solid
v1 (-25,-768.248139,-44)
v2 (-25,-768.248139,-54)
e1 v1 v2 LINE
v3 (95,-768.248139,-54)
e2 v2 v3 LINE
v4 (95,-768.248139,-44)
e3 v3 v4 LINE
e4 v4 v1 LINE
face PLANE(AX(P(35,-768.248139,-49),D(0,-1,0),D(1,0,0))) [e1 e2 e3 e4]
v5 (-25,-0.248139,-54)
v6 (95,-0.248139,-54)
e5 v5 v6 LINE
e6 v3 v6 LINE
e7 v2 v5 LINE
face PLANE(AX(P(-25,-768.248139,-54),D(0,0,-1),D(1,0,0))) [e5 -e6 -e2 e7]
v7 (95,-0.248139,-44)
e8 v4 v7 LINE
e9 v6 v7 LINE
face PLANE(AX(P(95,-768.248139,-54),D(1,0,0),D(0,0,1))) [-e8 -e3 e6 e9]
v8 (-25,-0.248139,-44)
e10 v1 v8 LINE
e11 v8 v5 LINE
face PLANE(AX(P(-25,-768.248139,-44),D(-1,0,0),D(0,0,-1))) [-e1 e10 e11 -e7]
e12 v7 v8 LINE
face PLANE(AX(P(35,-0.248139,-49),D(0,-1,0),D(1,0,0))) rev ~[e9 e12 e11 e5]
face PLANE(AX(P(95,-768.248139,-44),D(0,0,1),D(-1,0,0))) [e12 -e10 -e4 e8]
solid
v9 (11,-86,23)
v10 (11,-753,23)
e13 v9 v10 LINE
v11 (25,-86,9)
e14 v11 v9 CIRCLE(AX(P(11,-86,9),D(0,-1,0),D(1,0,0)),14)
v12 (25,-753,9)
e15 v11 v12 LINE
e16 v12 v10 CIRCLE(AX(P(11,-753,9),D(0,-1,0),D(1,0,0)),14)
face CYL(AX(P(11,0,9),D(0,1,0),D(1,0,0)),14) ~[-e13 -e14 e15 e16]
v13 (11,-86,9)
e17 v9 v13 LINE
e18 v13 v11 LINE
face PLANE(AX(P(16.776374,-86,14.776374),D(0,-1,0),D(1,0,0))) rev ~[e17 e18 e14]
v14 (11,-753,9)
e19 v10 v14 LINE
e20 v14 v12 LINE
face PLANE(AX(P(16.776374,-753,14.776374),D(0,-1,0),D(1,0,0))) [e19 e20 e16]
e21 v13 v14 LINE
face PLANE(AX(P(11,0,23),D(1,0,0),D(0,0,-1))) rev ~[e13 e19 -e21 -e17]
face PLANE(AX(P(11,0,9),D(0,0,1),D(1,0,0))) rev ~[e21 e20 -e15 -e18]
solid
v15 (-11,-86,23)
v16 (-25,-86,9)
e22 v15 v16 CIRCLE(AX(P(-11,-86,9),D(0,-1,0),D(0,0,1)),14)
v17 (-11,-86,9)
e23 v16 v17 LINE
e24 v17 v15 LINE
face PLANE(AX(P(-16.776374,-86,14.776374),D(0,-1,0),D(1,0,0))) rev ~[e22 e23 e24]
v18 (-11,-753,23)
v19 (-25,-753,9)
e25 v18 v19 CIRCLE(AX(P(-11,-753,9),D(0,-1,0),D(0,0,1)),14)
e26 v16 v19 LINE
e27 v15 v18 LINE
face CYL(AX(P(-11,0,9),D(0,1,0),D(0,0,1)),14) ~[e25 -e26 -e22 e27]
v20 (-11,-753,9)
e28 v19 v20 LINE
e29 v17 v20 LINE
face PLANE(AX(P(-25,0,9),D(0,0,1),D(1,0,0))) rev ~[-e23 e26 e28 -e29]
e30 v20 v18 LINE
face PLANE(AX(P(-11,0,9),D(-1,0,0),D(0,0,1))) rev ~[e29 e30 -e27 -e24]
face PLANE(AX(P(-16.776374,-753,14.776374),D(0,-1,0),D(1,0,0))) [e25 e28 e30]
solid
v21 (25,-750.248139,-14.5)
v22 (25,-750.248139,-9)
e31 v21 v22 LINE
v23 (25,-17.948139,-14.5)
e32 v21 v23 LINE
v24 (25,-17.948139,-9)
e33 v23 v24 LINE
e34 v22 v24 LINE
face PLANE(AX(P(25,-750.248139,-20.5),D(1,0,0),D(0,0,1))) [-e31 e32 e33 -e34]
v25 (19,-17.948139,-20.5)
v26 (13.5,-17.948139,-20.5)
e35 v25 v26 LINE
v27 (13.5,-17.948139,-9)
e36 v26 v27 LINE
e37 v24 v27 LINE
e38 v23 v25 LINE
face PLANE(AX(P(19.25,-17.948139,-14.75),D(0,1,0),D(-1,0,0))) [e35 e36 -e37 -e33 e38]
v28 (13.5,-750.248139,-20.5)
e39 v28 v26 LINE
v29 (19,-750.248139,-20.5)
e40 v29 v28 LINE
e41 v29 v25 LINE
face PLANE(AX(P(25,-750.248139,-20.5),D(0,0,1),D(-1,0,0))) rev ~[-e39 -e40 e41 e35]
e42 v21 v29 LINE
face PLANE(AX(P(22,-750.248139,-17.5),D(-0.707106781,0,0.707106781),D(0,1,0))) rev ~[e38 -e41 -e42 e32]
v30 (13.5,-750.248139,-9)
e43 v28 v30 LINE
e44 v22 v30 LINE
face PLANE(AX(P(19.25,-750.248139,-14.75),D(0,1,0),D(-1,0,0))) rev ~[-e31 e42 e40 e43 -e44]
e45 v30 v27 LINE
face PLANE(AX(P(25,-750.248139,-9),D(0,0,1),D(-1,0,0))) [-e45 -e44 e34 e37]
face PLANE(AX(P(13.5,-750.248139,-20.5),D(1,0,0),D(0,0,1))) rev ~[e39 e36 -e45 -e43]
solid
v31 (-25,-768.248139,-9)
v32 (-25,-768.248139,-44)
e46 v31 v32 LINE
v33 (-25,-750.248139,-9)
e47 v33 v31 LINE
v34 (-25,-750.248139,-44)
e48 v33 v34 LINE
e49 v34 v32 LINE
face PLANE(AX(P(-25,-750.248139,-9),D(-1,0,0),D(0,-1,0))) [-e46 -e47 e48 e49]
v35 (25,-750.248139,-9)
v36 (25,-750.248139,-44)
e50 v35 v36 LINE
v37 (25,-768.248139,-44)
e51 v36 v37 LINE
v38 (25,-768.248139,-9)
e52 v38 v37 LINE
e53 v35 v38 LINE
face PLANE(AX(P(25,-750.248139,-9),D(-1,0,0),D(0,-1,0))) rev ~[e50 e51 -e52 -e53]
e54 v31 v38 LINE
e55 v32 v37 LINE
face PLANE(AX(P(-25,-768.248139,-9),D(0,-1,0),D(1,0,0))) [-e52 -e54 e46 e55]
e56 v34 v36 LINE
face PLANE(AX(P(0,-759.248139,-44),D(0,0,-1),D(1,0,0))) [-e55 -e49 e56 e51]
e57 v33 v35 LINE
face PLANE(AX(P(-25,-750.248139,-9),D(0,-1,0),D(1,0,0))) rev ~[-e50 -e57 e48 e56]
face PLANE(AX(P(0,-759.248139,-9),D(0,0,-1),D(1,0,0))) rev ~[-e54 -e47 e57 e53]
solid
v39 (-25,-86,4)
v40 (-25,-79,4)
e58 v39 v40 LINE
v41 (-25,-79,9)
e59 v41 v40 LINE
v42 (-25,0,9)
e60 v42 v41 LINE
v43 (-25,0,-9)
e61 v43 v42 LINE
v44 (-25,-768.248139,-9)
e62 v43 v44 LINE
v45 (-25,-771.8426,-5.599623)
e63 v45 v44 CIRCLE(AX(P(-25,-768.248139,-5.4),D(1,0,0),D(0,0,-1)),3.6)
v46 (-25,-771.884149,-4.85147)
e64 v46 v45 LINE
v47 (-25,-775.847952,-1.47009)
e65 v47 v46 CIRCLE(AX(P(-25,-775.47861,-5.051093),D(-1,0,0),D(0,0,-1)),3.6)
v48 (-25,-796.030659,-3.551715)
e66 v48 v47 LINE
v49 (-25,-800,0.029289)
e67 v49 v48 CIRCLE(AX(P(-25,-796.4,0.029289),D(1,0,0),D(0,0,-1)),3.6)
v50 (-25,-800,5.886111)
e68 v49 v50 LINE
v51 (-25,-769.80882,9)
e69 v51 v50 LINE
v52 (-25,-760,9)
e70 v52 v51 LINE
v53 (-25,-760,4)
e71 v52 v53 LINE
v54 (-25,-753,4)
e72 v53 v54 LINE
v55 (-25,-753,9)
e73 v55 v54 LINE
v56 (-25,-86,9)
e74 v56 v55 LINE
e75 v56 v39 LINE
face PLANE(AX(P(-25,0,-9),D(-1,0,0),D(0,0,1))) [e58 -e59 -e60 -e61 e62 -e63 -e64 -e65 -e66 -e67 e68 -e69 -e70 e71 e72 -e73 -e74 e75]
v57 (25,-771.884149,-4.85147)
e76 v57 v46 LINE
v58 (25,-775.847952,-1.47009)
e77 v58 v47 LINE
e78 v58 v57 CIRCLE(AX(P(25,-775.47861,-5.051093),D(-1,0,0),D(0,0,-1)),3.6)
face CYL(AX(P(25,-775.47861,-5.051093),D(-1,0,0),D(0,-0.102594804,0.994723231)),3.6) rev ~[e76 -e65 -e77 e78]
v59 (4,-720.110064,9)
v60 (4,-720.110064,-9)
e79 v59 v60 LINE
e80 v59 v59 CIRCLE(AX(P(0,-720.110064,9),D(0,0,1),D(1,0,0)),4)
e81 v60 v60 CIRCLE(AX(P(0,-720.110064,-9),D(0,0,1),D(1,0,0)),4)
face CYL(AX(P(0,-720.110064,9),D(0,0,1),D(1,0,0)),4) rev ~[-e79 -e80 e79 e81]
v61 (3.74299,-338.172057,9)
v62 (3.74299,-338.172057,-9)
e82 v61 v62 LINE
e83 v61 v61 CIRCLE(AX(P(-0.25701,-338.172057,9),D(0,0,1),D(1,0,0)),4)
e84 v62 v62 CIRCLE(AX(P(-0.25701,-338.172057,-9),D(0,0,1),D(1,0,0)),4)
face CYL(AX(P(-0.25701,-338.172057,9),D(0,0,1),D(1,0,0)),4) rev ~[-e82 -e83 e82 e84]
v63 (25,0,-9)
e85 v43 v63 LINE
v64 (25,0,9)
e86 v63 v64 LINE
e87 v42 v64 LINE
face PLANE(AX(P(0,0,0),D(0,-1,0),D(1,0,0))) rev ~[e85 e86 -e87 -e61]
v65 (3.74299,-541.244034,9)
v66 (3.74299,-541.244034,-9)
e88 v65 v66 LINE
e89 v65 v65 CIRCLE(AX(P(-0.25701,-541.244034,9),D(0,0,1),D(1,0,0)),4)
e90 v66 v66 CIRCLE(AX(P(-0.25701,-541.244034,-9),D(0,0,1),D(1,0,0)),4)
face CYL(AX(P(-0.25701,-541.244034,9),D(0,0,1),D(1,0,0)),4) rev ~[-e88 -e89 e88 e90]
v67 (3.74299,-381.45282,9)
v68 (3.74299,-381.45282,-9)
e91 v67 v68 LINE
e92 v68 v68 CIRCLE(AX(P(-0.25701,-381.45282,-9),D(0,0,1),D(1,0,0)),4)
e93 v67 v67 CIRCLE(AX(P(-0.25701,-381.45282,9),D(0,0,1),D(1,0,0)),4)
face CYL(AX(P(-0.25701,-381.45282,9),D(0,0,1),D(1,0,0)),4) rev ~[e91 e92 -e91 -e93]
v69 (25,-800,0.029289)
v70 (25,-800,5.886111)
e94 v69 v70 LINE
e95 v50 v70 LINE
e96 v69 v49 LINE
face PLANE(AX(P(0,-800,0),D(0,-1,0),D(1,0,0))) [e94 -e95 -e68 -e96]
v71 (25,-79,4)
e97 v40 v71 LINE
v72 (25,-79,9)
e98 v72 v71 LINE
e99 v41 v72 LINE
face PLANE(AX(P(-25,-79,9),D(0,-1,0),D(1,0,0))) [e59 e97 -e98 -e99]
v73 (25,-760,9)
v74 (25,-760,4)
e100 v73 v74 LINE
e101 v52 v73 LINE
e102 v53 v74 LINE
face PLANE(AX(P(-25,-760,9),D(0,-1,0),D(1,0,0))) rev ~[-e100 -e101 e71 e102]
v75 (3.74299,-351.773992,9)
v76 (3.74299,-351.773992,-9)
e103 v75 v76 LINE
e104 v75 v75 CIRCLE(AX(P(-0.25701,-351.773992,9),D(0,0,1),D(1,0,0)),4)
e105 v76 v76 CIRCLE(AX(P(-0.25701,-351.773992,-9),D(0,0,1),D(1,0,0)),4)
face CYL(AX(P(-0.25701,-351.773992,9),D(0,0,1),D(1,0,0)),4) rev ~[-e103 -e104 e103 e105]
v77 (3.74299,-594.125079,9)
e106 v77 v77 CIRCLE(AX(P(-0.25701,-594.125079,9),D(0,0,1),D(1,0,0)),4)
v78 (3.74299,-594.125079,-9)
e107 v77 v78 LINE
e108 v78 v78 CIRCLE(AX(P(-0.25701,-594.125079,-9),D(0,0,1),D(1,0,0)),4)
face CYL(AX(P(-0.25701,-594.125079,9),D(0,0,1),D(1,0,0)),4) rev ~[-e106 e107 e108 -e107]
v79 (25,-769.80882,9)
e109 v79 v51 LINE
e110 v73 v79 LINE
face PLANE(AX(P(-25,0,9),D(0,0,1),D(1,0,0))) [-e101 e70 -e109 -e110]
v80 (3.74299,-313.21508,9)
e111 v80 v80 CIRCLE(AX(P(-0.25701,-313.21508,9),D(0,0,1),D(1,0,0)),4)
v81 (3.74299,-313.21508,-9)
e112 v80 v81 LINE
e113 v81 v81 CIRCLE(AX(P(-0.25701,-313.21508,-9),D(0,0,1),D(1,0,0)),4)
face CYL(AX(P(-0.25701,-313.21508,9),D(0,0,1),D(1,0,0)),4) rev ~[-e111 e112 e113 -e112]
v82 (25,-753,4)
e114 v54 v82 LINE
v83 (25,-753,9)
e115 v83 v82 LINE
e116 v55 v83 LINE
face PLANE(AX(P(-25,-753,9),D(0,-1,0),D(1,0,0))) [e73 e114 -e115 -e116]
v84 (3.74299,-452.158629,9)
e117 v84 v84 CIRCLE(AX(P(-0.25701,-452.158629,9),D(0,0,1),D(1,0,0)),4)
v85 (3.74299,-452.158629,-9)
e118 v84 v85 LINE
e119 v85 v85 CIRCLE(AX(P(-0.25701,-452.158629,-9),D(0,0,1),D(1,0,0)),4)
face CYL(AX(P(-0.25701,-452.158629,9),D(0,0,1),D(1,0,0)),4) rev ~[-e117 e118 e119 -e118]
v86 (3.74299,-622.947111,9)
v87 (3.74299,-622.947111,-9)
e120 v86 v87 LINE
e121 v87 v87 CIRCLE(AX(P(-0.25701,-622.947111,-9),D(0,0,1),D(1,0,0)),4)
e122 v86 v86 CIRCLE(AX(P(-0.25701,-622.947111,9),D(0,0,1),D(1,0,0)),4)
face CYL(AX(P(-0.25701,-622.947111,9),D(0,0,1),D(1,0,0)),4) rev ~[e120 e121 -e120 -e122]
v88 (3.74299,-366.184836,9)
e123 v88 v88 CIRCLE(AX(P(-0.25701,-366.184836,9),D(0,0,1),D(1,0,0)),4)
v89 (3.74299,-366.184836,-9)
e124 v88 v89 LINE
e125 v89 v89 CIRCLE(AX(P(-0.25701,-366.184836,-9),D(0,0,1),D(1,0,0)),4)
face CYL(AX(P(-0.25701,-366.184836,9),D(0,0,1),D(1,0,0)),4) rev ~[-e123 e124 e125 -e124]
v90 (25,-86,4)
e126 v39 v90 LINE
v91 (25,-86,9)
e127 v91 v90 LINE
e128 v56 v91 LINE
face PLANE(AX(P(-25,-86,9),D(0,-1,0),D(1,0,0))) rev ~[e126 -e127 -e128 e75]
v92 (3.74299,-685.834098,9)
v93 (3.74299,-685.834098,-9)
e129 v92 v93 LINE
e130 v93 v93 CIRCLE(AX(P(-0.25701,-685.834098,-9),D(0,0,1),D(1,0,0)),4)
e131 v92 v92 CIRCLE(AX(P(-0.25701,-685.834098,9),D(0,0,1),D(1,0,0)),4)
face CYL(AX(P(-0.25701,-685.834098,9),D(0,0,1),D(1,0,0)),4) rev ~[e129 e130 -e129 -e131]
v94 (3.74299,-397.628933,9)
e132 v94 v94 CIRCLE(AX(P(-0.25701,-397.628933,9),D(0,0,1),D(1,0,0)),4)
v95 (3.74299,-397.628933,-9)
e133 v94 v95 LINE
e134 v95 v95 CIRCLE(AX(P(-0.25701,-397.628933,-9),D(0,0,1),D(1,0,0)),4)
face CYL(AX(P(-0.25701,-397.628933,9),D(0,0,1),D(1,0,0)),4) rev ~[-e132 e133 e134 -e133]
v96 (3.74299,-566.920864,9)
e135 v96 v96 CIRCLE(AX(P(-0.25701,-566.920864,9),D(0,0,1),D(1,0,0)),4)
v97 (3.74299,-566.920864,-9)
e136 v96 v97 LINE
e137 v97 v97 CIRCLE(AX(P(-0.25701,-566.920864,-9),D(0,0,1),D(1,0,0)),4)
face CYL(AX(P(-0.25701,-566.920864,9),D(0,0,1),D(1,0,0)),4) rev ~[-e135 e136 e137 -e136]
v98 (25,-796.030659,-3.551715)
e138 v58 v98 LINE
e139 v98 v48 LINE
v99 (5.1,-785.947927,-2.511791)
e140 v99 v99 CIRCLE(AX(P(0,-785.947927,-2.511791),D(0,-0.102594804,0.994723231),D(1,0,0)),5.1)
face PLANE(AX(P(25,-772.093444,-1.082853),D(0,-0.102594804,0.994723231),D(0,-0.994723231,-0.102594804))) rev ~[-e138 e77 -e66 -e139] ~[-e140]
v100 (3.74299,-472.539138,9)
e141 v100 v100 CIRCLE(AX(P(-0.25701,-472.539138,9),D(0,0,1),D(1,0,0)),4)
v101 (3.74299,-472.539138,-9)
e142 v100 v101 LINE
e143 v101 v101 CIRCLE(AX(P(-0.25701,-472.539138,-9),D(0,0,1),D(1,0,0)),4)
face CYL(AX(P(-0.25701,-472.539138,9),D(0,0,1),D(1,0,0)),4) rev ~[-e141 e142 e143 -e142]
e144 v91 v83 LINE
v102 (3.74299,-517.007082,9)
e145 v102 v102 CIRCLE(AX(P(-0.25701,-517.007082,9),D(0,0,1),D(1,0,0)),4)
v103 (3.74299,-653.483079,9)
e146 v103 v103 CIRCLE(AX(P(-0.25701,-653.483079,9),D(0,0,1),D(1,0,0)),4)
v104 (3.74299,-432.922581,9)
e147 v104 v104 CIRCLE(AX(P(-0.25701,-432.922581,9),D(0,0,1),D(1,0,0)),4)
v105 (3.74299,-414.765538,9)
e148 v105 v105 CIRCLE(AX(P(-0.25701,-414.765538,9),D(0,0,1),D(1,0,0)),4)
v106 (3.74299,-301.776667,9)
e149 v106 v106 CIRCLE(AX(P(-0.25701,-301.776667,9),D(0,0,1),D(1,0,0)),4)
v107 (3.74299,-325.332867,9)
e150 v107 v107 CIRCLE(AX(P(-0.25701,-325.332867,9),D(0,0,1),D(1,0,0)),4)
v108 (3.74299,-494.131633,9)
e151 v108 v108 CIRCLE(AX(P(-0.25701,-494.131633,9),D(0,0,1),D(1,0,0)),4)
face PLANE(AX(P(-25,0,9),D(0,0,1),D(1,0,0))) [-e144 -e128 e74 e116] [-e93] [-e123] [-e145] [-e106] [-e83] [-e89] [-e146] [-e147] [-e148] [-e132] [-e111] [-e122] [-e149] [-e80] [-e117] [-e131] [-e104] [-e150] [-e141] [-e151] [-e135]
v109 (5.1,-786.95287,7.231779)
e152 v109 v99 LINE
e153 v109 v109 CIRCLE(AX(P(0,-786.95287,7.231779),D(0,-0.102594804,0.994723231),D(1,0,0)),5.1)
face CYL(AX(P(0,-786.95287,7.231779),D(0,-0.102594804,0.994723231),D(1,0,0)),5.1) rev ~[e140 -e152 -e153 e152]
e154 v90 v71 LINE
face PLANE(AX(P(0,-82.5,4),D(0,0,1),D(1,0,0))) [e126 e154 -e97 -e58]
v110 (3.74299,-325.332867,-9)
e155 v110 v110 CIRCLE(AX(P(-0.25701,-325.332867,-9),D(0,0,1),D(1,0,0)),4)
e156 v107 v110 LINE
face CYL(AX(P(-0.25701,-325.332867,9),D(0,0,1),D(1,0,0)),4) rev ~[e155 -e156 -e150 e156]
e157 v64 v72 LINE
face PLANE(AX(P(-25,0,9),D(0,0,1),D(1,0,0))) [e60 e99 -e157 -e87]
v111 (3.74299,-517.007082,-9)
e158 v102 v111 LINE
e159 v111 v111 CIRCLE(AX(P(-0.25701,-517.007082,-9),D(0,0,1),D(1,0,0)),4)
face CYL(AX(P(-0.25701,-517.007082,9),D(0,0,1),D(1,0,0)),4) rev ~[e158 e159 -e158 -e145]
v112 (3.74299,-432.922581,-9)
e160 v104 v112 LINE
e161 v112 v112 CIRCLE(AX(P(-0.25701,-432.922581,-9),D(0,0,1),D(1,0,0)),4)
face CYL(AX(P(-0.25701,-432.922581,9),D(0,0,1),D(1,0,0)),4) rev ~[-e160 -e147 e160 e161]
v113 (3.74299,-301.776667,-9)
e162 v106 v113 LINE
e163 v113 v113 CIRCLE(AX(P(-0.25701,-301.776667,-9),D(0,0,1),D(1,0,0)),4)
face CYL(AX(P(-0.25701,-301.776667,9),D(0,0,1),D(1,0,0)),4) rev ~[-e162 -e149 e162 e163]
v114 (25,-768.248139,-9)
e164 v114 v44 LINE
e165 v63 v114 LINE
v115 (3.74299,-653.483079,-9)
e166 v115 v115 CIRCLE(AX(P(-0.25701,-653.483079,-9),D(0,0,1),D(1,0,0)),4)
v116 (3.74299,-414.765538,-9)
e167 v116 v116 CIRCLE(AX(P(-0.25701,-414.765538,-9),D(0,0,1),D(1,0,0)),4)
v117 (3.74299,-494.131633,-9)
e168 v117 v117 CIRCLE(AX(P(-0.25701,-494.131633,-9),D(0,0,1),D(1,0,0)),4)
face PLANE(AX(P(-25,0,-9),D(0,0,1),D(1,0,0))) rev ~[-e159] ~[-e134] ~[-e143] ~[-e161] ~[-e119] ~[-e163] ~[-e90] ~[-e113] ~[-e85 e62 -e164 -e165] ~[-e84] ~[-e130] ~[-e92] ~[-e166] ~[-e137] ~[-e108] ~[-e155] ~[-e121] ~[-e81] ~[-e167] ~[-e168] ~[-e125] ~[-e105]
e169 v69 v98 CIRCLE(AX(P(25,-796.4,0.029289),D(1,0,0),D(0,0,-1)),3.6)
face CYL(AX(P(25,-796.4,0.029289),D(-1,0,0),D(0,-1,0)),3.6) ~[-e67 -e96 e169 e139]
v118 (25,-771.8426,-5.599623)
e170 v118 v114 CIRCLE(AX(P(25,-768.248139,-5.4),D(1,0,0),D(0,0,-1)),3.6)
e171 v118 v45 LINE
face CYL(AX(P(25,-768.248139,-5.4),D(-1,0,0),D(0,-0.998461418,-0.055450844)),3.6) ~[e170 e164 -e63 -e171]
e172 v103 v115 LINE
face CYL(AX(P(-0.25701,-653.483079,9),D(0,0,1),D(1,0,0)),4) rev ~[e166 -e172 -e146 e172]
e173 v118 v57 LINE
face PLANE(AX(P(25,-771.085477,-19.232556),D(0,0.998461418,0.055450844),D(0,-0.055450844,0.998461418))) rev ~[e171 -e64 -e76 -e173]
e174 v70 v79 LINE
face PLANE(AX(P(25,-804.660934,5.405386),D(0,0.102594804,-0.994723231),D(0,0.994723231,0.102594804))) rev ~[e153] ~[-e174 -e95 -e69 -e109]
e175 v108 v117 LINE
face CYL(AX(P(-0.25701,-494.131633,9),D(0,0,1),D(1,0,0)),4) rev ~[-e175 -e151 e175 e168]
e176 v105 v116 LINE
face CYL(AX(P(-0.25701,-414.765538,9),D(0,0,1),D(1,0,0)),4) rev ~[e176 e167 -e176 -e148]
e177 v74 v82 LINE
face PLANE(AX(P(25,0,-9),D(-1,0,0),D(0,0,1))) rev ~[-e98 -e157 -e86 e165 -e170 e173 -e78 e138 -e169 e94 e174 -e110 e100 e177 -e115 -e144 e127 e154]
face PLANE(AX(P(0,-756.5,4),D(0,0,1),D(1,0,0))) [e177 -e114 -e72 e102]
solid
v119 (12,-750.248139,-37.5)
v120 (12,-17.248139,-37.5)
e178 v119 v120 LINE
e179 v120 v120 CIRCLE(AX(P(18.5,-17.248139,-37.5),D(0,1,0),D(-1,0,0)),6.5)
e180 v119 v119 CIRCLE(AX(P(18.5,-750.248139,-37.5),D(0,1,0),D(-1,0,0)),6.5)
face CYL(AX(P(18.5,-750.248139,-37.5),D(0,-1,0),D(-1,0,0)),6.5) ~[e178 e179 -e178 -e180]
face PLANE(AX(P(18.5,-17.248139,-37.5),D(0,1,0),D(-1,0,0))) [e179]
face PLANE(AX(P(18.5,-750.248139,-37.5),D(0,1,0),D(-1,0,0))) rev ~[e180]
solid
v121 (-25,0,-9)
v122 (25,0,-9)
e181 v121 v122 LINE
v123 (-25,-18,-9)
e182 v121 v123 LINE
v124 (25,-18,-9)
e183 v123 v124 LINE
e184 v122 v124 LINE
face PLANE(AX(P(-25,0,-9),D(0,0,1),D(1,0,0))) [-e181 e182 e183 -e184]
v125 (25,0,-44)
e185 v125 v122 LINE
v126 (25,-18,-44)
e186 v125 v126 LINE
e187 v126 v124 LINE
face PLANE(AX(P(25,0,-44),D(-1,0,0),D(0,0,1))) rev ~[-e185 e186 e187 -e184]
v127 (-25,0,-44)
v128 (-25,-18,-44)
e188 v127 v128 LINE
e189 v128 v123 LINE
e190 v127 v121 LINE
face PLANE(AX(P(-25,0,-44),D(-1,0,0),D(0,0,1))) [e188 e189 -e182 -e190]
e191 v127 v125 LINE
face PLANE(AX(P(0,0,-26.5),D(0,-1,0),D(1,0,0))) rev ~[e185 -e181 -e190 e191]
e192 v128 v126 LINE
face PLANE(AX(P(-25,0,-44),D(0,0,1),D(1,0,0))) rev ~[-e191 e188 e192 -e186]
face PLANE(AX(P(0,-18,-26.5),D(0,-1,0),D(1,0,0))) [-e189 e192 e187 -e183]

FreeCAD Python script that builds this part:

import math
import FreeCAD as App
import Part
import Sketcher
from FreeCAD import Vector
Q = App.Units.Quantity


def edges_at(feature, points):
    """Names of the edges that pass closest to the given points."""
    edges = feature.Shape.Edges
    near = lambda p: min(range(len(edges)), key=lambda i: edges[i].distToShape(Part.Vertex(*p))[0])
    return sorted({f"Edge{near(p) + 1}" for p in points})


def add_polygon(sketch, points):
    """Adds a closed chain of lines whose ends are joined by coincident constraints."""
    first, n = sketch.GeometryCount, len(points)
    for a, b in zip(points, points[1:] + points[:1]):
        sketch.addGeometry(Part.LineSegment(App.Vector(*a, 0), App.Vector(*b, 0)), False)
    for i in range(n):
        sketch.addConstraint(Sketcher.Constraint("Coincident", first + i, 2, first + (i + 1) % n, 1))

doc = App.newDocument("Part")
body = doc.addObject("PartDesign::Body", "Body")

sketch1 = doc.addObject("Sketcher::SketchObject", "Sketch")
body.addObject(sketch1)
sketch1.AttachmentSupport = (doc.XZ_Plane, [""])
sketch1.MapMode = "FlatFace"
add_polygon(sketch1, [(-25, 9), (-25, -9), (25, -9), (25, 9)])
sketch1.addConstraint(Sketcher.Constraint("Vertical", 0))
sketch1.addConstraint(Sketcher.Constraint("Horizontal", 1))
sketch1.addConstraint(Sketcher.Constraint("Vertical", 2))
sketch1.addConstraint(Sketcher.Constraint("Horizontal", 3))
sketch1.addConstraint(Sketcher.Constraint("Symmetric", 0, 2, 2, 2, -1, 1))
sketch1.addConstraint(Sketcher.Constraint("DistanceX", 1, 1, 1, 2, Q("50 mm")))
sketch1.addConstraint(Sketcher.Constraint("DistanceY", 0, 2, 0, 1, Q("18 mm")))
pad1 = doc.addObject("PartDesign::Pad", "Pad")
body.addObject(pad1)
pad1.Profile = sketch1
pad1.Length = 800

sketch2 = doc.addObject("Sketcher::SketchObject", "Sketch001")
body.addObject(sketch2)
sketch2.AttachmentSupport = (doc.XY_Plane, [""])
sketch2.MapMode = "FlatFace"
sketch2.AttachmentOffset = App.Placement(Vector(0, 0, 9), App.Rotation())
add_polygon(sketch2, [(-25, -79), (-25, -86), (25, -86), (25, -79)])
add_polygon(sketch2, [(-25, -753), (-25, -760), (25, -760), (25, -753)])
sketch2.addConstraint(Sketcher.Constraint("Vertical", 0))
sketch2.addConstraint(Sketcher.Constraint("Horizontal", 1))
sketch2.addConstraint(Sketcher.Constraint("Vertical", 2))
sketch2.addConstraint(Sketcher.Constraint("Horizontal", 3))
sketch2.addConstraint(Sketcher.Constraint("Vertical", 4))
sketch2.addConstraint(Sketcher.Constraint("Horizontal", 5))
sketch2.addConstraint(Sketcher.Constraint("Vertical", 6))
sketch2.addConstraint(Sketcher.Constraint("Horizontal", 7))
sketch2.addConstraint(Sketcher.Constraint("Vertical", 3, 2, 4, 2))
sketch2.addConstraint(Sketcher.Constraint("Vertical", 2, 2, 5, 2))
sketch2.addConstraint(Sketcher.Constraint("Equal", 2, 4))
sketch2.addConstraint(Sketcher.Constraint("DistanceX", 1, 1, 1, 2, Q("50 mm")))
sketch2.addConstraint(Sketcher.Constraint("DistanceY", 0, 2, 0, 1, Q("7 mm")))
sketch2.addConstraint(Sketcher.Constraint("DistanceX", 0, 2, -1, 1, Q("25 mm")))
sketch2.addConstraint(Sketcher.Constraint("DistanceY", 0, 2, -1, 1, Q("86 mm")))
sketch2.addConstraint(Sketcher.Constraint("DistanceY", 4, 2, -1, 1, Q("760 mm")))
pocket1 = doc.addObject("PartDesign::Pocket", "Pocket")
body.addObject(pocket1)
pocket1.Profile = sketch2
pocket1.Length = 5

sketch3 = doc.addObject("Sketcher::SketchObject", "Sketch002")
body.addObject(sketch3)
sketch3.AttachmentSupport = (doc.YZ_Plane, [""])
sketch3.MapMode = "FlatFace"
sketch3.AttachmentOffset = App.Placement(Vector(0, 0, 25), App.Rotation())
add_polygon(sketch3, [(-771, -19), (-772, -1), (-809, -5), (-809, -19)])
add_polygon(sketch3, [(-805, 15), (-805, 5), (-715, 15)])
sketch3.addConstraint(Sketcher.Constraint("Vertical", 2))
sketch3.addConstraint(Sketcher.Constraint("Horizontal", 3))
sketch3.addConstraint(Sketcher.Constraint("Horizontal", 6))
sketch3.addConstraint(Sketcher.Constraint("Parallel", 1, 5))
sketch3.addConstraint(Sketcher.Constraint("Distance", 4, Q("9.210098 mm")))
sketch3.addConstraint(Sketcher.Constraint("DistanceX", 3, 1, 3, 2, Q("38.03457 mm")))
sketch3.addConstraint(Sketcher.Constraint("DistanceX", 4, 2, 5, 2, Q("89.2136 mm")))
sketch3.addConstraint(Sketcher.Constraint("Distance", 0, Q("18.177671 mm")))
sketch3.addConstraint(Sketcher.Constraint("Distance", 1, Q("37.22302 mm")))
sketch3.addConstraint(Sketcher.Constraint("DistanceX", 6, 2, 6, 1, Q("89.613656 mm")))
sketch3.addConstraint(Sketcher.Constraint("DistanceY", 1, 2, -1, 1, Q("4.901742 mm")))
sketch3.addConstraint(Sketcher.Constraint("DistanceY", -1, 1, 5, 2, Q("14.606792 mm")))
sketch3.addConstraint(Sketcher.Constraint("DistanceX", 6, 2, -1, 1, Q("805.060991 mm")))
sketch3.addConstraint(Sketcher.Constraint("DistanceX", 4, 2, 0, 2, Q("32.56749 mm")))
pocket2 = doc.addObject("PartDesign::Pocket", "Pocket001")
body.addObject(pocket2)
pocket2.Profile = sketch3
pocket2.Type = "ThroughAll"

sketch4 = doc.addObject("Sketcher::SketchObject", "Sketch003")
body.addObject(sketch4)
sketch4.Placement = App.Placement(Vector(0, -9.021253, 87.466903), App.Rotation(Vector(1, 0, 0), Vector(0, 0.994723231, 0.102594804), Vector(0, -0.102594804, 0.994723231), "ZXY"))
sketch4.addGeometry(Part.Circle(Vector(0, -1003.5, 0), Vector(0, 0, 1), 4), False)
sketch4.addGeometry(Part.Circle(Vector(0, -782.1, 0), Vector(0, 0, 1), 5.1), False)
sketch4.addConstraint(Sketcher.Constraint("PointOnObject", 0, 3, -2))
sketch4.addConstraint(Sketcher.Constraint("PointOnObject", 1, 3, -2))
sketch4.addConstraint(Sketcher.Constraint("Diameter", 0, Q("8 mm")))
sketch4.addConstraint(Sketcher.Constraint("Diameter", 1, Q("10.2 mm")))
sketch4.addConstraint(Sketcher.Constraint("DistanceY", 0, 3, -1, 1, Q("1003.47294 mm")))
sketch4.addConstraint(Sketcher.Constraint("DistanceY", 1, 3, -1, 1, Q("782.058358 mm")))
pocket3 = doc.addObject("PartDesign::Pocket", "Pocket002")
body.addObject(pocket3)
pocket3.Profile = sketch4
pocket3.Type = "ThroughAll"

sketch5 = doc.addObject("Sketcher::SketchObject", "Sketch004")
body.addObject(sketch5)
sketch5.AttachmentSupport = (doc.XY_Plane, [""])
sketch5.MapMode = "FlatFace"
sketch5.AttachmentOffset = App.Placement(Vector(0, 0, 9), App.Rotation())
sketch5.addGeometry(Part.Circle(Vector(0, 548.5, 0), Vector(0, 0, 1), 5), False)
sketch5.addGeometry(Part.Circle(Vector(0, 720.4, 0), Vector(0, 0, 1), 5), False)
sketch5.addGeometry(Part.Circle(Vector(0, -720.1, 0), Vector(0, 0, 1), 4), False)
sketch5.addGeometry(Part.Circle(Vector(-0.3, -685.8, 0), Vector(0, 0, 1), 4), False)
sketch5.addGeometry(Part.Circle(Vector(-0.3, -653.5, 0), Vector(0, 0, 1), 4), False)
sketch5.addGeometry(Part.Circle(Vector(-0.3, -622.9, 0), Vector(0, 0, 1), 4), False)
sketch5.addGeometry(Part.Circle(Vector(-0.3, -594.1, 0), Vector(0, 0, 1), 4), False)
sketch5.addGeometry(Part.Circle(Vector(-0.3, -566.9, 0), Vector(0, 0, 1), 4), False)
sketch5.addGeometry(Part.Circle(Vector(-0.3, -541.2, 0), Vector(0, 0, 1), 4), False)
sketch5.addGeometry(Part.Circle(Vector(-0.3, -517, 0), Vector(0, 0, 1), 4), False)
sketch5.addGeometry(Part.Circle(Vector(-0.3, -494.1, 0), Vector(0, 0, 1), 4), False)
sketch5.addGeometry(Part.Circle(Vector(-0.3, -472.5, 0), Vector(0, 0, 1), 4), False)
sketch5.addGeometry(Part.Circle(Vector(-0.3, -452.2, 0), Vector(0, 0, 1), 4), False)
sketch5.addGeometry(Part.Circle(Vector(-0.3, -432.9, 0), Vector(0, 0, 1), 4), False)
sketch5.addGeometry(Part.Circle(Vector(-0.3, -414.8, 0), Vector(0, 0, 1), 4), False)
sketch5.addGeometry(Part.Circle(Vector(-0.3, -397.6, 0), Vector(0, 0, 1), 4), False)
sketch5.addGeometry(Part.Circle(Vector(-0.3, -381.5, 0), Vector(0, 0, 1), 4), False)
sketch5.addGeometry(Part.Circle(Vector(-0.3, -366.2, 0), Vector(0, 0, 1), 4), False)
sketch5.addGeometry(Part.Circle(Vector(-0.3, -351.8, 0), Vector(0, 0, 1), 4), False)
sketch5.addGeometry(Part.Circle(Vector(-0.3, -338.2, 0), Vector(0, 0, 1), 4), False)
sketch5.addGeometry(Part.Circle(Vector(-0.3, -325.3, 0), Vector(0, 0, 1), 4), False)
sketch5.addGeometry(Part.Circle(Vector(-0.3, -313.2, 0), Vector(0, 0, 1), 4), False)
sketch5.addGeometry(Part.Circle(Vector(-0.3, -301.8, 0), Vector(0, 0, 1), 4), False)
sketch5.addConstraint(Sketcher.Constraint("Equal", 0, 1))
sketch5.addConstraint(Sketcher.Constraint("Equal", 2, 3))
sketch5.addConstraint(Sketcher.Constraint("Equal", 3, 4))
sketch5.addConstraint(Sketcher.Constraint("Equal", 4, 5))
sketch5.addConstraint(Sketcher.Constraint("Equal", 5, 6))
sketch5.addConstraint(Sketcher.Constraint("Equal", 6, 7))
sketch5.addConstraint(Sketcher.Constraint("Equal", 7, 8))
sketch5.addConstraint(Sketcher.Constraint("Equal", 8, 9))
sketch5.addConstraint(Sketcher.Constraint("Equal", 9, 10))
sketch5.addConstraint(Sketcher.Constraint("Equal", 10, 11))
sketch5.addConstraint(Sketcher.Constraint("Equal", 11, 12))
sketch5.addConstraint(Sketcher.Constraint("Equal", 12, 13))
sketch5.addConstraint(Sketcher.Constraint("Equal", 13, 14))
sketch5.addConstraint(Sketcher.Constraint("Equal", 14, 15))
sketch5.addConstraint(Sketcher.Constraint("Equal", 15, 16))
sketch5.addConstraint(Sketcher.Constraint("Equal", 16, 17))
sketch5.addConstraint(Sketcher.Constraint("Equal", 17, 18))
sketch5.addConstraint(Sketcher.Constraint("Equal", 18, 19))
sketch5.addConstraint(Sketcher.Constraint("Equal", 19, 20))
sketch5.addConstraint(Sketcher.Constraint("Equal", 20, 21))
sketch5.addConstraint(Sketcher.Constraint("Equal", 21, 22))
sketch5.addConstraint(Sketcher.Constraint("PointOnObject", 0, 3, -2))
sketch5.addConstraint(Sketcher.Constraint("PointOnObject", 1, 3, -2))
sketch5.addConstraint(Sketcher.Constraint("PointOnObject", 2, 3, -2))
sketch5.addConstraint(Sketcher.Constraint("Vertical", 3, 3, 4, 3))
sketch5.addConstraint(Sketcher.Constraint("Vertical", 4, 3, 5, 3))
sketch5.addConstraint(Sketcher.Constraint("Vertical", 5, 3, 6, 3))
sketch5.addConstraint(Sketcher.Constraint("Vertical", 6, 3, 7, 3))
sketch5.addConstraint(Sketcher.Constraint("Vertical", 7, 3, 8, 3))
sketch5.addConstraint(Sketcher.Constraint("Vertical", 8, 3, 9, 3))
sketch5.addConstraint(Sketcher.Constraint("Vertical", 9, 3, 10, 3))
sketch5.addConstraint(Sketcher.Constraint("Vertical", 10, 3, 11, 3))
sketch5.addConstraint(Sketcher.Constraint("Vertical", 11, 3, 12, 3))
sketch5.addConstraint(Sketcher.Constraint("Vertical", 12, 3, 13, 3))
sketch5.addConstraint(Sketcher.Constraint("Vertical", 13, 3, 14, 3))
sketch5.addConstraint(Sketcher.Constraint("Vertical", 14, 3, 15, 3))
sketch5.addConstraint(Sketcher.Constraint("Vertical", 15, 3, 16, 3))
sketch5.addConstraint(Sketcher.Constraint("Vertical", 16, 3, 17, 3))
sketch5.addConstraint(Sketcher.Constraint("Vertical", 17, 3, 18, 3))
sketch5.addConstraint(Sketcher.Constraint("Vertical", 18, 3, 19, 3))
sketch5.addConstraint(Sketcher.Constraint("Vertical", 19, 3, 20, 3))
sketch5.addConstraint(Sketcher.Constraint("Vertical", 20, 3, 21, 3))
sketch5.addConstraint(Sketcher.Constraint("Vertical", 21, 3, 22, 3))
sketch5.addConstraint(Sketcher.Constraint("Diameter", 0, Q("10 mm")))
sketch5.addConstraint(Sketcher.Constraint("Diameter", 2, Q("8 mm")))
sketch5.addConstraint(Sketcher.Constraint("DistanceY", 4, 3, 6, 3, Q("59.358 mm")))
sketch5.addConstraint(Sketcher.Constraint("DistanceY", 5, 3, 0, 3, Q("1171.436698 mm")))
sketch5.addConstraint(Sketcher.Constraint("DistanceY", 2, 3, 7, 3, Q("153.1892 mm")))
sketch5.addConstraint(Sketcher.Constraint("DistanceY", 8, 3, 10, 3, Q("47.112401 mm")))
sketch5.addConstraint(Sketcher.Constraint("DistanceY", 9, 3, 13, 3, Q("84.084501 mm")))
sketch5.addConstraint(Sketcher.Constraint("DistanceY", 11, 3, 14, 3, Q("57.7736 mm")))
sketch5.addConstraint(Sketcher.Constraint("DistanceY", 10, 3, 15, 3, Q("96.5027 mm")))
sketch5.addConstraint(Sketcher.Constraint("DistanceY", 14, 3, 17, 3, Q("48.580702 mm")))
sketch5.addConstraint(Sketcher.Constraint("DistanceY", 20, 3, 22, 3, Q("23.5562 mm")))
sketch5.addConstraint(Sketcher.Constraint("DistanceX", 3, 3, -1, 1, Q("0.25701 mm")))
sketch5.addConstraint(Sketcher.Constraint("DistanceY", 4, 3, -1, 1, Q("653.483079 mm")))
sketch5.addConstraint(Sketcher.Constraint("DistanceY", 5, 3, -1, 1, Q("622.947111 mm")))
sketch5.addConstraint(Sketcher.Constraint("DistanceY", 9, 3, -1, 1, Q("517.007082 mm")))
sketch5.addConstraint(Sketcher.Constraint("DistanceY", 12, 3, -1, 1, Q("452.158629 mm")))
sketch5.addConstraint(Sketcher.Constraint("DistanceY", 16, 3, -1, 1, Q("381.45282 mm")))
sketch5.addConstraint(Sketcher.Constraint("DistanceY", 18, 3, -1, 1, Q("351.773992 mm")))
sketch5.addConstraint(Sketcher.Constraint("DistanceY", 21, 3, -1, 1, Q("313.21508 mm")))
sketch5.addConstraint(Sketcher.Constraint("DistanceY", 2, 3, 0, 3, Q("1268.599651 mm")))
sketch5.addConstraint(Sketcher.Constraint("DistanceY", 2, 3, 1, 3, Q("1440.510218 mm")))
sketch5.addConstraint(Sketcher.Constraint("DistanceY", 3, 3, 4, 3, Q("32.351019 mm")))
sketch5.addConstraint(Sketcher.Constraint("DistanceY", 7, 3, 8, 3, Q("25.67683 mm")))
sketch5.addConstraint(Sketcher.Constraint("DistanceY", 6, 3, 11, 3, Q("121.585941 mm")))
sketch5.addConstraint(Sketcher.Constraint("DistanceY", 17, 3, 19, 3, Q("28.012779 mm")))
sketch5.addConstraint(Sketcher.Constraint("DistanceY", 19, 3, 20, 3, Q("12.83919 mm")))
pocket4 = doc.addObject("PartDesign::Pocket", "Pocket003")
body.addObject(pocket4)
pocket4.Profile = sketch5
pocket4.Length = 25
doc.recompute()

fillet = doc.addObject("PartDesign::Fillet", "Fillet")
body.addObject(fillet)
fillet.Base = (pocket4, edges_at(pocket4, [(0, -772.093, -1.083), (0, -771.654, -9), (0, -800, -3.961)]))
fillet.Radius = 3.6
body2 = doc.addObject("PartDesign::Body", "Body001")

sketch6 = doc.addObject("Sketcher::SketchObject", "Sketch005")
body2.addObject(sketch6)
sketch6.AttachmentSupport = (doc.getObject("XZ_Plane001"), [""])
sketch6.MapMode = "FlatFace"
sketch6.addGeometry(Part.ArcOfCircle(Part.Circle(Vector(-11, 9, 0), Vector(0, 0, 1), 14), math.radians(90), math.radians(180)), False)
sketch6.addGeometry(Part.LineSegment(Vector(-25, 9, 0), Vector(-11, 9, 0)), False)
sketch6.addGeometry(Part.LineSegment(Vector(-11, 9, 0), Vector(-11, 23, 0)), False)
sketch6.addConstraint(Sketcher.Constraint("Coincident", 0, 2, 1, 1))
sketch6.addConstraint(Sketcher.Constraint("Coincident", 1, 2, 2, 1))
sketch6.addConstraint(Sketcher.Constraint("Coincident", 2, 2, 0, 1))
sketch6.addConstraint(Sketcher.Constraint("Horizontal", 1))
sketch6.addConstraint(Sketcher.Constraint("Vertical", 2))
sketch6.addConstraint(Sketcher.Constraint("Coincident", 1, 2, 0, 3))
sketch6.addConstraint(Sketcher.Constraint("Radius", 0, Q("14 mm")))
sketch6.addConstraint(Sketcher.Constraint("DistanceX", 0, 3, -1, 1, Q("11 mm")))
sketch6.addConstraint(Sketcher.Constraint("DistanceY", -1, 1, 0, 3, Q("9 mm")))
pad2 = doc.addObject("PartDesign::Pad", "Pad001")
body2.addObject(pad2)
pad2.Profile = sketch6
pad2.Length = 753
body3 = doc.addObject("PartDesign::Body", "Body002")

sketch7 = doc.addObject("Sketcher::SketchObject", "Sketch006")
body3.addObject(sketch7)
sketch7.AttachmentSupport = (doc.getObject("XZ_Plane002"), [""])
sketch7.MapMode = "FlatFace"
sketch7.addGeometry(Part.ArcOfCircle(Part.Circle(Vector(11, 9, 0), Vector(0, 0, 1), 14), math.radians(0), math.radians(90)), False)
sketch7.addGeometry(Part.LineSegment(Vector(11, 23, 0), Vector(11, 9, 0)), False)
sketch7.addGeometry(Part.LineSegment(Vector(11, 9, 0), Vector(25, 9, 0)), False)
sketch7.addConstraint(Sketcher.Constraint("Coincident", 0, 2, 1, 1))
sketch7.addConstraint(Sketcher.Constraint("Coincident", 1, 2, 2, 1))
sketch7.addConstraint(Sketcher.Constraint("Coincident", 2, 2, 0, 1))
sketch7.addConstraint(Sketcher.Constraint("Vertical", 1))
sketch7.addConstraint(Sketcher.Constraint("Horizontal", 2))
sketch7.addConstraint(Sketcher.Constraint("Coincident", 1, 2, 0, 3))
sketch7.addConstraint(Sketcher.Constraint("Radius", 0, Q("14 mm")))
sketch7.addConstraint(Sketcher.Constraint("DistanceX", -1, 1, 0, 3, Q("11 mm")))
sketch7.addConstraint(Sketcher.Constraint("DistanceY", -1, 1, 0, 3, Q("9 mm")))
pad3 = doc.addObject("PartDesign::Pad", "Pad002")
body3.addObject(pad3)
pad3.Profile = sketch7
pad3.Length = 753
body4 = doc.addObject("PartDesign::Body", "Body003")
body4.AllowCompound = True

sketch8 = doc.addObject("Sketcher::SketchObject", "Sketch007")
body4.addObject(sketch8)
sketch8.AttachmentSupport = (doc.getObject("XZ_Plane003"), [""])
sketch8.MapMode = "FlatFace"
sketch8.addGeometry(Part.ArcOfCircle(Part.Circle(Vector(-11, 9, 0), Vector(0, 0, 1), 14), math.radians(90), math.radians(180)), False)
sketch8.addGeometry(Part.LineSegment(Vector(-25, 9, 0), Vector(-11, 9, 0)), False)
sketch8.addGeometry(Part.LineSegment(Vector(-11, 9, 0), Vector(-11, 23, 0)), False)
sketch8.addGeometry(Part.ArcOfCircle(Part.Circle(Vector(11, 9, 0), Vector(0, 0, 1), 14), math.radians(0), math.radians(90)), False)
sketch8.addGeometry(Part.LineSegment(Vector(11, 23, 0), Vector(11, 9, 0)), False)
sketch8.addGeometry(Part.LineSegment(Vector(11, 9, 0), Vector(25, 9, 0)), False)
sketch8.addConstraint(Sketcher.Constraint("Coincident", 0, 2, 1, 1))
sketch8.addConstraint(Sketcher.Constraint("Coincident", 1, 2, 2, 1))
sketch8.addConstraint(Sketcher.Constraint("Coincident", 2, 2, 0, 1))
sketch8.addConstraint(Sketcher.Constraint("Coincident", 3, 2, 4, 1))
sketch8.addConstraint(Sketcher.Constraint("Coincident", 4, 2, 5, 1))
sketch8.addConstraint(Sketcher.Constraint("Coincident", 5, 2, 3, 1))
sketch8.addConstraint(Sketcher.Constraint("Horizontal", 1))
sketch8.addConstraint(Sketcher.Constraint("Vertical", 2))
sketch8.addConstraint(Sketcher.Constraint("Vertical", 4))
sketch8.addConstraint(Sketcher.Constraint("Horizontal", 5))
sketch8.addConstraint(Sketcher.Constraint("Coincident", 1, 2, 0, 3))
sketch8.addConstraint(Sketcher.Constraint("Coincident", 4, 2, 3, 3))
sketch8.addConstraint(Sketcher.Constraint("Equal", 0, 3))
sketch8.addConstraint(Sketcher.Constraint("Symmetric", 0, 3, 3, 3, -2))
sketch8.addConstraint(Sketcher.Constraint("Radius", 0, Q("14 mm")))
sketch8.addConstraint(Sketcher.Constraint("DistanceX", 0, 3, -1, 1, Q("11 mm")))
sketch8.addConstraint(Sketcher.Constraint("DistanceY", -1, 1, 0, 3, Q("9 mm")))
pad4 = doc.addObject("PartDesign::Pad", "Pad003")
body4.addObject(pad4)
pad4.Profile = sketch8
pad4.Length = 86
doc.recompute()

body5 = doc.addObject("PartDesign::Body", "Body004")
body5.BaseFeature = body4
boolean = doc.addObject("PartDesign::Boolean", "Boolean")
body2.addObject(boolean)
boolean.Type = "Cut"
boolean.addObjects([body5])
doc.recompute()

boolean2 = doc.addObject("PartDesign::Boolean", "Boolean001")
body3.addObject(boolean2)
boolean2.Type = "Cut"
boolean2.addObjects([body4])
body6 = doc.addObject("PartDesign::Body", "Body005")

sketch9 = doc.addObject("Sketcher::SketchObject", "Sketch008")
body6.addObject(sketch9)
sketch9.AttachmentSupport = (doc.getObject("XZ_Plane005"), [""])
sketch9.MapMode = "FlatFace"
add_polygon(sketch9, [(-25, -9), (-25, -44), (25, -44), (25, -9)])
sketch9.addConstraint(Sketcher.Constraint("Vertical", 0))
sketch9.addConstraint(Sketcher.Constraint("Horizontal", 1))
sketch9.addConstraint(Sketcher.Constraint("Vertical", 2))
sketch9.addConstraint(Sketcher.Constraint("Horizontal", 3))
sketch9.addConstraint(Sketcher.Constraint("DistanceX", 1, 1, 1, 2, Q("50 mm")))
sketch9.addConstraint(Sketcher.Constraint("DistanceY", 0, 2, 0, 1, Q("35 mm")))
sketch9.addConstraint(Sketcher.Constraint("DistanceX", 0, 2, -1, 1, Q("25 mm")))
sketch9.addConstraint(Sketcher.Constraint("DistanceY", 0, 2, -1, 1, Q("44 mm")))
pad5 = doc.addObject("PartDesign::Pad", "Pad004")
body6.addObject(pad5)
pad5.Profile = sketch9
pad5.Length = 18
body7 = doc.addObject("PartDesign::Body", "Body006")

sketch10 = doc.addObject("Sketcher::SketchObject", "Sketch009")
body7.addObject(sketch10)
sketch10.AttachmentSupport = (doc.getObject("XY_Plane006"), [""])
sketch10.MapMode = "FlatFace"
sketch10.AttachmentOffset = App.Placement(Vector(0, 0, -9), App.Rotation())
add_polygon(sketch10, [(-25, -768), (-25, -750), (25, -750), (25, -768)])
sketch10.addConstraint(Sketcher.Constraint("Vertical", 0))
sketch10.addConstraint(Sketcher.Constraint("Horizontal", 1))
sketch10.addConstraint(Sketcher.Constraint("Vertical", 2))
sketch10.addConstraint(Sketcher.Constraint("Horizontal", 3))
sketch10.addConstraint(Sketcher.Constraint("DistanceX", 1, 1, 1, 2, Q("50 mm")))
sketch10.addConstraint(Sketcher.Constraint("DistanceY", 0, 1, 0, 2, Q("18 mm")))
sketch10.addConstraint(Sketcher.Constraint("DistanceX", 0, 2, -1, 1, Q("25 mm")))
sketch10.addConstraint(Sketcher.Constraint("DistanceY", 0, 2, -1, 1, Q("750.248139 mm")))
pad6 = doc.addObject("PartDesign::Pad", "Pad005")
body7.addObject(pad6)
pad6.Profile = sketch10
pad6.Length = 35
pad6.Reversed = True
body8 = doc.addObject("PartDesign::Body", "Body007")

sketch11 = doc.addObject("Sketcher::SketchObject", "Sketch010")
body8.addObject(sketch11)
sketch11.AttachmentSupport = (doc.getObject("XZ_Plane007"), [""])
sketch11.MapMode = "FlatFace"
sketch11.AttachmentOffset = App.Placement(Vector(0, 0, 750.248139), App.Rotation())
sketch11.addGeometry(Part.Circle(Vector(18, -38, 0), Vector(0, 0, 1), 6), False)
sketch11.addConstraint(Sketcher.Constraint("Diameter", 0, Q("13 mm")))
sketch11.addConstraint(Sketcher.Constraint("DistanceX", -1, 1, 0, 3, Q("18.5 mm")))
sketch11.addConstraint(Sketcher.Constraint("DistanceY", 0, 3, -1, 1, Q("37.5 mm")))
pad7 = doc.addObject("PartDesign::Pad", "Pad006")
body8.addObject(pad7)
pad7.Profile = sketch11
pad7.Length = 733
pad7.Reversed = True
body9 = doc.addObject("PartDesign::Body", "Body008")

sketch12 = doc.addObject("Sketcher::SketchObject", "Sketch011")
body9.addObject(sketch12)
sketch12.AttachmentSupport = (doc.getObject("XZ_Plane008"), [""])
sketch12.MapMode = "FlatFace"
sketch12.AttachmentOffset = App.Placement(Vector(0, 0, 768.248139), App.Rotation())
add_polygon(sketch12, [(-25, -44), (-25, -54), (95, -54), (95, -44)])
sketch12.addConstraint(Sketcher.Constraint("Vertical", 0))
sketch12.addConstraint(Sketcher.Constraint("Horizontal", 1))
sketch12.addConstraint(Sketcher.Constraint("Vertical", 2))
sketch12.addConstraint(Sketcher.Constraint("Horizontal", 3))
sketch12.addConstraint(Sketcher.Constraint("DistanceX", 1, 1, 1, 2, Q("120 mm")))
sketch12.addConstraint(Sketcher.Constraint("DistanceY", 0, 2, 0, 1, Q("10 mm")))
sketch12.addConstraint(Sketcher.Constraint("DistanceX", 0, 2, -1, 1, Q("25 mm")))
sketch12.addConstraint(Sketcher.Constraint("DistanceY", 0, 2, -1, 1, Q("54 mm")))
pad8 = doc.addObject("PartDesign::Pad", "Pad007")
body9.addObject(pad8)
pad8.Profile = sketch12
pad8.Length = 768
pad8.Reversed = True
body10 = doc.addObject("PartDesign::Body", "Body009")

sketch13 = doc.addObject("Sketcher::SketchObject", "Sketch012")
body10.addObject(sketch13)
sketch13.AttachmentSupport = (doc.getObject("XZ_Plane009"), [""])
sketch13.MapMode = "FlatFace"
sketch13.AttachmentOffset = App.Placement(Vector(0, 0, 750.248139), App.Rotation())
add_polygon(sketch13, [(25, -9), (25, -20), (14, -20), (14, -9)])
sketch13.addConstraint(Sketcher.Constraint("Vertical", 0))
sketch13.addConstraint(Sketcher.Constraint("Horizontal", 1))
sketch13.addConstraint(Sketcher.Constraint("Vertical", 2))
sketch13.addConstraint(Sketcher.Constraint("Horizontal", 3))
sketch13.addConstraint(Sketcher.Constraint("Equal", 3, 0))
sketch13.addConstraint(Sketcher.Constraint("DistanceX", 1, 2, 1, 1, Q("11.5 mm")))
sketch13.addConstraint(Sketcher.Constraint("DistanceX", -1, 1, 0, 2, Q("25 mm")))
sketch13.addConstraint(Sketcher.Constraint("DistanceY", 2, 2, -1, 1, Q("9 mm")))
pad9 = doc.addObject("PartDesign::Pad", "Pad008")
body10.addObject(pad9)
pad9.Profile = sketch13
pad9.Length = 732.3
pad9.Reversed = True
doc.recompute()

chamfer = doc.addObject("PartDesign::Chamfer", "Chamfer")
body10.addObject(chamfer)
chamfer.Base = (pad9, edges_at(pad9, [(25, -384.098, -20.5)]))
chamfer.Size = 6

doc.recompute()
